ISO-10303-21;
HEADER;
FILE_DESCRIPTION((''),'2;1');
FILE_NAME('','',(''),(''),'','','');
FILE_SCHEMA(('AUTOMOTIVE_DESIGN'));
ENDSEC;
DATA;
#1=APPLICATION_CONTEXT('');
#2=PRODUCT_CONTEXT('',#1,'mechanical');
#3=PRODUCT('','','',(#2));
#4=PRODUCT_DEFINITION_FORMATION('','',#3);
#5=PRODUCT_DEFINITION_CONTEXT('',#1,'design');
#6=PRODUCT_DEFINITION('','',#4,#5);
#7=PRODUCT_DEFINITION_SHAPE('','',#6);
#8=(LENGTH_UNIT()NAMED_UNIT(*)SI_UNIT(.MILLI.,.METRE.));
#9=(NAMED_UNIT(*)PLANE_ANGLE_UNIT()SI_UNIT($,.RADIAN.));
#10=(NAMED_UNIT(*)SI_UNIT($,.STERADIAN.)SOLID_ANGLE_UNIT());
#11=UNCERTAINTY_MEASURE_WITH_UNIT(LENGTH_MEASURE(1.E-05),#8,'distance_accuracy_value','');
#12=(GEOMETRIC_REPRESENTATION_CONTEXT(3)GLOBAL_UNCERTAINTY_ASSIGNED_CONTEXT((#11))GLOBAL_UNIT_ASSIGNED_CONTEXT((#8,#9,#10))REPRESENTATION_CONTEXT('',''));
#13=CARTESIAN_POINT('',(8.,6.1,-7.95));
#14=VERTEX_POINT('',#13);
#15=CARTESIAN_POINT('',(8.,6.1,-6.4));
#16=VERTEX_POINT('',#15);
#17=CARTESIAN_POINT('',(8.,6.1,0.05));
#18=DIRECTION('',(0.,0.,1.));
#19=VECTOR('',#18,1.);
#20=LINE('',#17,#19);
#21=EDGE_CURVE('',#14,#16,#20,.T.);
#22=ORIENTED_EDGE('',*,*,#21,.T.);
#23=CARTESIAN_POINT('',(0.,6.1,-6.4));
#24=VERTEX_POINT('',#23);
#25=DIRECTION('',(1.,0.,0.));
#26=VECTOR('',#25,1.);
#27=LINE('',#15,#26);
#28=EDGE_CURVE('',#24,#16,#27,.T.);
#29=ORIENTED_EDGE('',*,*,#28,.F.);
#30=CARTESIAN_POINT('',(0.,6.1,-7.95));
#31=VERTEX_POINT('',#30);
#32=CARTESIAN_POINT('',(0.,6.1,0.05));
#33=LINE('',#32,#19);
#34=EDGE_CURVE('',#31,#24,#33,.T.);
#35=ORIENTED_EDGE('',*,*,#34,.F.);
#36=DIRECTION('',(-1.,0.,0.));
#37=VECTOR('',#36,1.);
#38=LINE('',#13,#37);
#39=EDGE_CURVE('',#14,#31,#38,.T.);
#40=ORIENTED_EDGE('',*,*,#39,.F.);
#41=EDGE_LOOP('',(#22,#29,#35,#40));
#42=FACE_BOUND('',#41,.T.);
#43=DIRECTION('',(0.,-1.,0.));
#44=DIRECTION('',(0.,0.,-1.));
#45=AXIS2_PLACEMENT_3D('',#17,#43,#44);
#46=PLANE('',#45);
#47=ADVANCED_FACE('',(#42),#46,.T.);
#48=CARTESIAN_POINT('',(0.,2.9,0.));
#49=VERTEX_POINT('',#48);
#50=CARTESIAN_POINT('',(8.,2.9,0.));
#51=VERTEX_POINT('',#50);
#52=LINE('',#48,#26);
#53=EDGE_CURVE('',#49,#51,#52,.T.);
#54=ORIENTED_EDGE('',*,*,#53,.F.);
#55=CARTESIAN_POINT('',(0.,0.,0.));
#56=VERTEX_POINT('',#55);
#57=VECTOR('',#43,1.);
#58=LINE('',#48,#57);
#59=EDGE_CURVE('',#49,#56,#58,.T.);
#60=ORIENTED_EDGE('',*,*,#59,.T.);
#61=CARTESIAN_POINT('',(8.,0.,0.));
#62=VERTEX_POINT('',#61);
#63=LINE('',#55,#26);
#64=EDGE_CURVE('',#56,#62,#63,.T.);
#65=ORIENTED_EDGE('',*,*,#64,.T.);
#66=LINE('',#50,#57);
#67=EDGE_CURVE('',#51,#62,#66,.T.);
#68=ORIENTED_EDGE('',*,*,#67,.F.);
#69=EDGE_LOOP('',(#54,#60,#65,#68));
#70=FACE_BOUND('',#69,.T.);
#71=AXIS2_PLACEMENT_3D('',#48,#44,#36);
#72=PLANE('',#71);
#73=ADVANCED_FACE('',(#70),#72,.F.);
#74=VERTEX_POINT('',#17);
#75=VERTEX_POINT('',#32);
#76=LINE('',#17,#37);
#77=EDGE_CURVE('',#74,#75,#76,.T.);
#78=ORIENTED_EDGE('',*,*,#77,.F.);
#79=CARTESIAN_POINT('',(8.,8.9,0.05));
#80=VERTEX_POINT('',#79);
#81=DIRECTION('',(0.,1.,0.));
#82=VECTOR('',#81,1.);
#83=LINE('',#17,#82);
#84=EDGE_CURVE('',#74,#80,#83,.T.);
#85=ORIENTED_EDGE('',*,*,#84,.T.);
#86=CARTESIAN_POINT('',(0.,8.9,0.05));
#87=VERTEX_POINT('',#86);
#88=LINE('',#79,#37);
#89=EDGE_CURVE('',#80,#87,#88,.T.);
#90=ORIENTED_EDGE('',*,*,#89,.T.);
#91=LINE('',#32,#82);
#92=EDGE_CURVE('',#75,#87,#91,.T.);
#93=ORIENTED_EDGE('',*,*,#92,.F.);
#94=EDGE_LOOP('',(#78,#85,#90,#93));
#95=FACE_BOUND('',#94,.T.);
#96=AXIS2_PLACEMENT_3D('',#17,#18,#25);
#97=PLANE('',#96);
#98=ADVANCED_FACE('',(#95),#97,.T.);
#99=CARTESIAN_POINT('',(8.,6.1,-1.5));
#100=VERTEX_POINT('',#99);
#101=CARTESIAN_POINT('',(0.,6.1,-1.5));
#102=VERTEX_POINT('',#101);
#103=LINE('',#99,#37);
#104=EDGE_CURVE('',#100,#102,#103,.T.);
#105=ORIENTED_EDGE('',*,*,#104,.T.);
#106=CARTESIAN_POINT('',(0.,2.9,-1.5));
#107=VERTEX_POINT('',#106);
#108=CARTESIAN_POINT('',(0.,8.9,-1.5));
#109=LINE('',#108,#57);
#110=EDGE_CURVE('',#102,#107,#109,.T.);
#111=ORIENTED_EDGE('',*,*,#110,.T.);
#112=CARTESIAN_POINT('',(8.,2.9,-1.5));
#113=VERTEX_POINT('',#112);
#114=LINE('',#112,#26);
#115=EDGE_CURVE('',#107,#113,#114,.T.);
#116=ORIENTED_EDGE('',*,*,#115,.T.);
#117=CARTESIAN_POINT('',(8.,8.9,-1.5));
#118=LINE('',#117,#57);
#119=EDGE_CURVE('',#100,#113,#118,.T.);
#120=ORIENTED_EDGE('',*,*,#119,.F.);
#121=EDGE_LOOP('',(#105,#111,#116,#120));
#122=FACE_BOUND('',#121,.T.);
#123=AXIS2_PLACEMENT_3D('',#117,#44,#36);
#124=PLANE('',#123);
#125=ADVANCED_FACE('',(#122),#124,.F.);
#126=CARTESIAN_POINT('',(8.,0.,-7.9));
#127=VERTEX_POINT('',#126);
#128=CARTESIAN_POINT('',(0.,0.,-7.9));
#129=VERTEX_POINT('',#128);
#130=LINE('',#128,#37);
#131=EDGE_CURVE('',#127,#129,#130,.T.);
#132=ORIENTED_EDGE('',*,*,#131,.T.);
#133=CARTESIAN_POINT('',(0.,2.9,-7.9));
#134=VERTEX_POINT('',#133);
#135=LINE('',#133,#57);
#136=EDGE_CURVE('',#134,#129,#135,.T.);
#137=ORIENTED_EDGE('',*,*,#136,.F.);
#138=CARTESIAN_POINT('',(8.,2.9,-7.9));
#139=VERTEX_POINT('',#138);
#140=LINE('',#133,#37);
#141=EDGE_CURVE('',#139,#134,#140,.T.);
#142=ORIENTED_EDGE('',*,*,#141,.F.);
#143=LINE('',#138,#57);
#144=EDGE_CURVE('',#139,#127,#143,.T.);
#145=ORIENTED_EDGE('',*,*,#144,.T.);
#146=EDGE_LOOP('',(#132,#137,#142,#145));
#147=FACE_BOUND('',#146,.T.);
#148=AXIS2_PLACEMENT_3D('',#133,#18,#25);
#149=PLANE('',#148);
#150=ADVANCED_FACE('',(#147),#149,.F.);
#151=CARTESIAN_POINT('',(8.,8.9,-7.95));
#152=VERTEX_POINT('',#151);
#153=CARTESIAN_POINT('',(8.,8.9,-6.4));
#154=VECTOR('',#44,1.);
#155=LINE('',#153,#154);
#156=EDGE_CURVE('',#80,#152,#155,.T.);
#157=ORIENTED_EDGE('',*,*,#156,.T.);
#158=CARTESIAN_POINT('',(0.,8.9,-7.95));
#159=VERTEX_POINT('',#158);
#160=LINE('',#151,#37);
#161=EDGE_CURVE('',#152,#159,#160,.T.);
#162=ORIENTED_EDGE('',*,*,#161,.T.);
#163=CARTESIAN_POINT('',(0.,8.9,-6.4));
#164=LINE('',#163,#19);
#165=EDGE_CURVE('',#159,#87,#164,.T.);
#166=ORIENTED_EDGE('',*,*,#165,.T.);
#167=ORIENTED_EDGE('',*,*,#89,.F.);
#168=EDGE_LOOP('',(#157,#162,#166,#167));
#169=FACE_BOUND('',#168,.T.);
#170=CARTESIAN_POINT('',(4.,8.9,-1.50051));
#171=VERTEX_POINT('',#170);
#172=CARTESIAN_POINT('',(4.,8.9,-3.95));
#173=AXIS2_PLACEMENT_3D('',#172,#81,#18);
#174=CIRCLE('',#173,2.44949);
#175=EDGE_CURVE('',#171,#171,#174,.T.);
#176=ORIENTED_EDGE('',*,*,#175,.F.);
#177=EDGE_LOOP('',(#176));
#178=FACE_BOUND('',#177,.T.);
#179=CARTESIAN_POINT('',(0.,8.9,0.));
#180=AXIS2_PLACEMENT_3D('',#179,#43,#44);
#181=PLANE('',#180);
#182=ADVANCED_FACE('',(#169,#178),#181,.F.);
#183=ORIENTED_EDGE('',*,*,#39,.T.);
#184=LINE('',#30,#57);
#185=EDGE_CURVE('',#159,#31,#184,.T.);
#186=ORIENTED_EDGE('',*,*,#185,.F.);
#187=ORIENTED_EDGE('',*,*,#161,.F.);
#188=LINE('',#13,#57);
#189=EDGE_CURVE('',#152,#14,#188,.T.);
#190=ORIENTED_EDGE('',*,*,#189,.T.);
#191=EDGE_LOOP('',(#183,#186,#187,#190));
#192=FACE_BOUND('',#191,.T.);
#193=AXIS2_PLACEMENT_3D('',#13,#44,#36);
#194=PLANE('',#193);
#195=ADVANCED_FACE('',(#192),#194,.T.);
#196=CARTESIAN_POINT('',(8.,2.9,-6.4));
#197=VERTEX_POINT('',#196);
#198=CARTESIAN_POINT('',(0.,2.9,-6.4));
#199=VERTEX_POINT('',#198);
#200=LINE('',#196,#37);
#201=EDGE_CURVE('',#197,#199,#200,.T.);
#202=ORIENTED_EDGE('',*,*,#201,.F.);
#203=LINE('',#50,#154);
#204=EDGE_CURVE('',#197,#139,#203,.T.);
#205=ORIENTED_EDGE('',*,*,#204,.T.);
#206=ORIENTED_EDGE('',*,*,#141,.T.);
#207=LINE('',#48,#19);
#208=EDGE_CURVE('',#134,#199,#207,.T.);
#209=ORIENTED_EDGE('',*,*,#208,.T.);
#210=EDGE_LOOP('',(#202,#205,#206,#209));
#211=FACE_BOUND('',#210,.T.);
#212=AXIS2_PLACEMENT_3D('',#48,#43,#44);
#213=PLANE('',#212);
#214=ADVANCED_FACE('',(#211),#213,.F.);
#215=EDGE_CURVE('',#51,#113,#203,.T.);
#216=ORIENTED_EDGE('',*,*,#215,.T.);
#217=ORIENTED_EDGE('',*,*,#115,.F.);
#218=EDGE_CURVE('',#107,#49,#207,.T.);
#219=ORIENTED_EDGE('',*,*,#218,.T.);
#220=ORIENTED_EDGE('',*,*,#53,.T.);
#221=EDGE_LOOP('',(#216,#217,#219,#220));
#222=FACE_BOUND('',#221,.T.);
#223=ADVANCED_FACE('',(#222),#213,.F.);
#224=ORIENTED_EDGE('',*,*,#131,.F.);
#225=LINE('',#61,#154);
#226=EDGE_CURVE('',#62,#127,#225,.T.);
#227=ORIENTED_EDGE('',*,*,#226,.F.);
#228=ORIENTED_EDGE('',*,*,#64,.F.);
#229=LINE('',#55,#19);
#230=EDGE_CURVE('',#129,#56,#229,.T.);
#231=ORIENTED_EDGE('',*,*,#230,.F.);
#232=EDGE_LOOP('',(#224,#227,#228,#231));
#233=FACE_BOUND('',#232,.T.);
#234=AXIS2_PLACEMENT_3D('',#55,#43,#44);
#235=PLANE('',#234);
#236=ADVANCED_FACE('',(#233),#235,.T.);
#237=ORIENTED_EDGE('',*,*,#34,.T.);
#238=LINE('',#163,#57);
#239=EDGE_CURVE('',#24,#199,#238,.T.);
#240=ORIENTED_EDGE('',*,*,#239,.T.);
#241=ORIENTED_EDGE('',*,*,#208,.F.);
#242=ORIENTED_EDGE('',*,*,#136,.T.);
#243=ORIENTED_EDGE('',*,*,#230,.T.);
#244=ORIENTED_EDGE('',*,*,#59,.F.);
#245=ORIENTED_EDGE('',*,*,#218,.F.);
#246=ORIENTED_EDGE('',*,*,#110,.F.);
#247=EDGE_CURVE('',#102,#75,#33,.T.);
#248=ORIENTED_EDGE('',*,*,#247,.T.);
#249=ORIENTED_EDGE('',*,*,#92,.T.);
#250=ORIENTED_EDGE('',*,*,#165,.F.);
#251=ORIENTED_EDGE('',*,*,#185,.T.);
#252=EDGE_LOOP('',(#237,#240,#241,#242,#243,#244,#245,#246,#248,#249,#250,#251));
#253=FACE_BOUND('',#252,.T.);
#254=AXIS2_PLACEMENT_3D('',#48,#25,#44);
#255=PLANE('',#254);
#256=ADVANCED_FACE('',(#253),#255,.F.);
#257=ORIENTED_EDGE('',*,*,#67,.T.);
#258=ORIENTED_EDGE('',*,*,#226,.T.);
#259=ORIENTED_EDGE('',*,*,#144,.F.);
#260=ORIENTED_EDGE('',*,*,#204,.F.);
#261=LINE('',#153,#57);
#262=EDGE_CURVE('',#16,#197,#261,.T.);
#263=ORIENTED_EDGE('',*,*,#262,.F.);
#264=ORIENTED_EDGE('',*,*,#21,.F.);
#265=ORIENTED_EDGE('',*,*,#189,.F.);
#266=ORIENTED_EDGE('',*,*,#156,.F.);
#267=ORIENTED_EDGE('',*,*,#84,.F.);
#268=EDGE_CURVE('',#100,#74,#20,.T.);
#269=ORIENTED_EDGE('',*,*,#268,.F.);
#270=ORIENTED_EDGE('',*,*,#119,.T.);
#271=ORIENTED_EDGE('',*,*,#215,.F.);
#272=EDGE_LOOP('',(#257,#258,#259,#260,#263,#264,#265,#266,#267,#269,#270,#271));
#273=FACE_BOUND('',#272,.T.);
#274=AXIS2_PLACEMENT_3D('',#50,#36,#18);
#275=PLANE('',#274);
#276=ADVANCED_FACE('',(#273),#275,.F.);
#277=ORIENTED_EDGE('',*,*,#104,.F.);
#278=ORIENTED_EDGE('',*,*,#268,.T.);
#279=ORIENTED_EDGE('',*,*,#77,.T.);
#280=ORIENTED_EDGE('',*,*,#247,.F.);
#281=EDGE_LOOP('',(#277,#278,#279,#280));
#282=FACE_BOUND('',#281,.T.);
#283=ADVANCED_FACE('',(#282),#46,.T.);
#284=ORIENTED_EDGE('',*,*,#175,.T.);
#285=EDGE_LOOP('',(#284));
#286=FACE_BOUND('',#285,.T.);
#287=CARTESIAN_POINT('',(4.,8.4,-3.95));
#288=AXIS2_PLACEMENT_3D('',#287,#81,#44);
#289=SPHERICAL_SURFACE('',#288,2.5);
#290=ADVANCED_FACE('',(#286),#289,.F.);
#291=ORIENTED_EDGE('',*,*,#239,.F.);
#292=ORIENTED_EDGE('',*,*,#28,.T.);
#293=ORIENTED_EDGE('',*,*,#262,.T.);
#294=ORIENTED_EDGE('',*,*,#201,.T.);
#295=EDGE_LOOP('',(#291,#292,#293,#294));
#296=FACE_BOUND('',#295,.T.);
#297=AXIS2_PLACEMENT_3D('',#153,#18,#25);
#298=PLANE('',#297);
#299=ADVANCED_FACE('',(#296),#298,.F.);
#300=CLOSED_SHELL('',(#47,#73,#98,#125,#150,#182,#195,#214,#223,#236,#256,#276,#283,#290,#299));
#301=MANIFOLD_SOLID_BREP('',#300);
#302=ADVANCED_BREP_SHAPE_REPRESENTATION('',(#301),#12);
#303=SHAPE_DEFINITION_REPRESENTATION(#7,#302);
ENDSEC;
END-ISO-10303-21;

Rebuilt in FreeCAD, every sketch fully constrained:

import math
import FreeCAD as App
import Part
import Sketcher

V = App.Vector
Q = App.Units.Quantity

doc = App.newDocument("Part")
body = doc.addObject("PartDesign::Body", "Body")

sketch1 = doc.addObject("Sketcher::SketchObject", "Sketch")
body.addObject(sketch1)
sketch1.AttachmentSupport = (doc.XZ_Plane, [""])
sketch1.MapMode = "FlatFace"
sketch1.addGeometry([
    Part.LineSegment(V(0, -7.9, 0), V(0, 0, 0)),
    Part.LineSegment(V(0, 0, 0), V(8, 0, 0)),
    Part.LineSegment(V(8, 0, 0), V(8, -7.9, 0)),
    Part.LineSegment(V(8, -7.9, 0), V(0, -7.9, 0)),
], False)
sketch1.addConstraint([
    Sketcher.Constraint("Coincident", 0, 2, 1, 1),
    Sketcher.Constraint("Coincident", 1, 2, 2, 1),
    Sketcher.Constraint("Coincident", 2, 2, 3, 1),
    Sketcher.Constraint("Coincident", 3, 2, 0, 1),
    Sketcher.Constraint("Vertical", 0),
    Sketcher.Constraint("Horizontal", 1),
    Sketcher.Constraint("Vertical", 2),
    Sketcher.Constraint("Horizontal", 3),
    Sketcher.Constraint("Coincident", 0, 2, -1, 1),
    Sketcher.Constraint("DistanceX", 1, 1, 1, 2, Q("8 mm")),
    Sketcher.Constraint("DistanceY", 0, 1, 0, 2, Q("7.9 mm")),
])
pad1 = doc.addObject("PartDesign::Pad", "Pad")
body.addObject(pad1)
pad1.Profile = sketch1
pad1.Length = 2.9
pad1.Reversed = True

sketch2 = doc.addObject("Sketcher::SketchObject", "Sketch001")
body.addObject(sketch2)
sketch2.AttachmentSupport = (doc.XZ_Plane, [""])
sketch2.MapMode = "FlatFace"
sketch2.AttachmentOffset = App.Placement(V(0, 0, -2.9), App.Rotation())
sketch2.addGeometry([
    Part.LineSegment(V(0, -6.4, 0), V(0, -1.5, 0)),
    Part.LineSegment(V(0, -1.5, 0), V(8, -1.5, 0)),
    Part.LineSegment(V(8, -1.5, 0), V(8, -6.4, 0)),
    Part.LineSegment(V(8, -6.4, 0), V(0, -6.4, 0)),
], False)
sketch2.addConstraint([
    Sketcher.Constraint("Coincident", 0, 2, 1, 1),
    Sketcher.Constraint("Coincident", 1, 2, 2, 1),
    Sketcher.Constraint("Coincident", 2, 2, 3, 1),
    Sketcher.Constraint("Coincident", 3, 2, 0, 1),
    Sketcher.Constraint("Vertical", 0),
    Sketcher.Constraint("Horizontal", 1),
    Sketcher.Constraint("Vertical", 2),
    Sketcher.Constraint("Horizontal", 3),
    Sketcher.Constraint("PointOnObject", 0, 2, -2),
    Sketcher.Constraint("DistanceX", 1, 1, 1, 2, Q("8 mm")),
    Sketcher.Constraint("DistanceY", 0, 1, 0, 2, Q("4.9 mm")),
    Sketcher.Constraint("DistanceY", 0, 2, -1, 1, Q("1.5 mm")),
])
pad2 = doc.addObject("PartDesign::Pad", "Pad001")
body.addObject(pad2)
pad2.Profile = sketch2
pad2.Length = 6
pad2.Reversed = True

sketch3 = doc.addObject("Sketcher::SketchObject", "Sketch002")
body.addObject(sketch3)
sketch3.AttachmentSupport = (doc.YZ_Plane, [""])
sketch3.MapMode = "FlatFace"
sketch3.addGeometry([
    Part.LineSegment(V(8.9, -7.95, 0), V(6.1, -7.95, 0)),
    Part.LineSegment(V(6.1, -7.95, 0), V(6.1, 0.05, 0)),
    Part.LineSegment(V(6.1, 0.05, 0), V(8.9, 0.05, 0)),
    Part.LineSegment(V(8.9, 0.05, 0), V(8.9, -7.95, 0)),
], False)
sketch3.addConstraint([
    Sketcher.Constraint("Coincident", 0, 2, 1, 1),
    Sketcher.Constraint("Coincident", 1, 2, 2, 1),
    Sketcher.Constraint("Coincident", 2, 2, 3, 1),
    Sketcher.Constraint("Coincident", 3, 2, 0, 1),
    Sketcher.Constraint("Horizontal", 0),
    Sketcher.Constraint("Vertical", 1),
    Sketcher.Constraint("Horizontal", 2),
    Sketcher.Constraint("Vertical", 3),
    Sketcher.Constraint("DistanceY", 1, 1, 1, 2, Q("8 mm")),
    Sketcher.Constraint("DistanceX", 0, 2, 0, 1, Q("2.8 mm")),
    Sketcher.Constraint("DistanceX", -1, 1, 0, 2, Q("6.1 mm")),
    Sketcher.Constraint("DistanceY", 0, 2, -1, 1, Q("7.95 mm")),
])
pad3 = doc.addObject("PartDesign::Pad", "Pad002")
body.addObject(pad3)
pad3.Profile = sketch3
pad3.Type = "UpToLast"

sketch4 = doc.addObject("Sketcher::SketchObject", "Sketch003")
body.addObject(sketch4)
sketch4.AttachmentSupport = (doc.YZ_Plane, [""])
sketch4.MapMode = "FlatFace"
sketch4.AttachmentOffset = App.Placement(V(0, 0, 4), App.Rotation())
sketch4.addGeometry([
    Part.LineSegment(V(8.9, -3.95, 0), V(8.9, -6.39949, 0)),
    Part.ArcOfCircle(Part.Circle(V(8.4, -3.95, 0), V(0, 0, 1), 2.5), math.radians(180), math.radians(281.536959)),
    Part.LineSegment(V(5.9, -3.95, 0), V(8.9, -3.95, 0)),
], False)
sketch4.addGeometry(Part.LineSegment(V(8.9, -3.95, 0), V(5.9, -3.95, 0)), True)
sketch4.addConstraint([
    Sketcher.Constraint("Coincident", 0, 2, 1, 2),
    Sketcher.Constraint("Coincident", 1, 1, 2, 1),
    Sketcher.Constraint("Coincident", 2, 2, 0, 1),
    Sketcher.Constraint("Vertical", 0),
    Sketcher.Constraint("Horizontal", 2),
    Sketcher.Constraint("Horizontal", 3),
    Sketcher.Constraint("Coincident", 3, 1, 2, 2),
    Sketcher.Constraint("Equal", 2, 3),
    Sketcher.Constraint("Radius", 1, Q("2.5 mm")),
    Sketcher.Constraint("DistanceX", 2, 1, 2, 2, Q("3 mm")),
    Sketcher.Constraint("DistanceX", -1, 1, 1, 3, Q("8.4 mm")),
    Sketcher.Constraint("DistanceY", 1, 3, -1, 1, Q("3.95 mm")),
    Sketcher.Constraint("DistanceY", 1, 1, -1, 1, Q("3.95 mm")),
])
groove = doc.addObject("PartDesign::Groove", "Groove")
body.addObject(groove)
groove.Profile = sketch4
groove.ReferenceAxis = (sketch4, ["Axis0"])
groove.Angle = 360

doc.recompute()
